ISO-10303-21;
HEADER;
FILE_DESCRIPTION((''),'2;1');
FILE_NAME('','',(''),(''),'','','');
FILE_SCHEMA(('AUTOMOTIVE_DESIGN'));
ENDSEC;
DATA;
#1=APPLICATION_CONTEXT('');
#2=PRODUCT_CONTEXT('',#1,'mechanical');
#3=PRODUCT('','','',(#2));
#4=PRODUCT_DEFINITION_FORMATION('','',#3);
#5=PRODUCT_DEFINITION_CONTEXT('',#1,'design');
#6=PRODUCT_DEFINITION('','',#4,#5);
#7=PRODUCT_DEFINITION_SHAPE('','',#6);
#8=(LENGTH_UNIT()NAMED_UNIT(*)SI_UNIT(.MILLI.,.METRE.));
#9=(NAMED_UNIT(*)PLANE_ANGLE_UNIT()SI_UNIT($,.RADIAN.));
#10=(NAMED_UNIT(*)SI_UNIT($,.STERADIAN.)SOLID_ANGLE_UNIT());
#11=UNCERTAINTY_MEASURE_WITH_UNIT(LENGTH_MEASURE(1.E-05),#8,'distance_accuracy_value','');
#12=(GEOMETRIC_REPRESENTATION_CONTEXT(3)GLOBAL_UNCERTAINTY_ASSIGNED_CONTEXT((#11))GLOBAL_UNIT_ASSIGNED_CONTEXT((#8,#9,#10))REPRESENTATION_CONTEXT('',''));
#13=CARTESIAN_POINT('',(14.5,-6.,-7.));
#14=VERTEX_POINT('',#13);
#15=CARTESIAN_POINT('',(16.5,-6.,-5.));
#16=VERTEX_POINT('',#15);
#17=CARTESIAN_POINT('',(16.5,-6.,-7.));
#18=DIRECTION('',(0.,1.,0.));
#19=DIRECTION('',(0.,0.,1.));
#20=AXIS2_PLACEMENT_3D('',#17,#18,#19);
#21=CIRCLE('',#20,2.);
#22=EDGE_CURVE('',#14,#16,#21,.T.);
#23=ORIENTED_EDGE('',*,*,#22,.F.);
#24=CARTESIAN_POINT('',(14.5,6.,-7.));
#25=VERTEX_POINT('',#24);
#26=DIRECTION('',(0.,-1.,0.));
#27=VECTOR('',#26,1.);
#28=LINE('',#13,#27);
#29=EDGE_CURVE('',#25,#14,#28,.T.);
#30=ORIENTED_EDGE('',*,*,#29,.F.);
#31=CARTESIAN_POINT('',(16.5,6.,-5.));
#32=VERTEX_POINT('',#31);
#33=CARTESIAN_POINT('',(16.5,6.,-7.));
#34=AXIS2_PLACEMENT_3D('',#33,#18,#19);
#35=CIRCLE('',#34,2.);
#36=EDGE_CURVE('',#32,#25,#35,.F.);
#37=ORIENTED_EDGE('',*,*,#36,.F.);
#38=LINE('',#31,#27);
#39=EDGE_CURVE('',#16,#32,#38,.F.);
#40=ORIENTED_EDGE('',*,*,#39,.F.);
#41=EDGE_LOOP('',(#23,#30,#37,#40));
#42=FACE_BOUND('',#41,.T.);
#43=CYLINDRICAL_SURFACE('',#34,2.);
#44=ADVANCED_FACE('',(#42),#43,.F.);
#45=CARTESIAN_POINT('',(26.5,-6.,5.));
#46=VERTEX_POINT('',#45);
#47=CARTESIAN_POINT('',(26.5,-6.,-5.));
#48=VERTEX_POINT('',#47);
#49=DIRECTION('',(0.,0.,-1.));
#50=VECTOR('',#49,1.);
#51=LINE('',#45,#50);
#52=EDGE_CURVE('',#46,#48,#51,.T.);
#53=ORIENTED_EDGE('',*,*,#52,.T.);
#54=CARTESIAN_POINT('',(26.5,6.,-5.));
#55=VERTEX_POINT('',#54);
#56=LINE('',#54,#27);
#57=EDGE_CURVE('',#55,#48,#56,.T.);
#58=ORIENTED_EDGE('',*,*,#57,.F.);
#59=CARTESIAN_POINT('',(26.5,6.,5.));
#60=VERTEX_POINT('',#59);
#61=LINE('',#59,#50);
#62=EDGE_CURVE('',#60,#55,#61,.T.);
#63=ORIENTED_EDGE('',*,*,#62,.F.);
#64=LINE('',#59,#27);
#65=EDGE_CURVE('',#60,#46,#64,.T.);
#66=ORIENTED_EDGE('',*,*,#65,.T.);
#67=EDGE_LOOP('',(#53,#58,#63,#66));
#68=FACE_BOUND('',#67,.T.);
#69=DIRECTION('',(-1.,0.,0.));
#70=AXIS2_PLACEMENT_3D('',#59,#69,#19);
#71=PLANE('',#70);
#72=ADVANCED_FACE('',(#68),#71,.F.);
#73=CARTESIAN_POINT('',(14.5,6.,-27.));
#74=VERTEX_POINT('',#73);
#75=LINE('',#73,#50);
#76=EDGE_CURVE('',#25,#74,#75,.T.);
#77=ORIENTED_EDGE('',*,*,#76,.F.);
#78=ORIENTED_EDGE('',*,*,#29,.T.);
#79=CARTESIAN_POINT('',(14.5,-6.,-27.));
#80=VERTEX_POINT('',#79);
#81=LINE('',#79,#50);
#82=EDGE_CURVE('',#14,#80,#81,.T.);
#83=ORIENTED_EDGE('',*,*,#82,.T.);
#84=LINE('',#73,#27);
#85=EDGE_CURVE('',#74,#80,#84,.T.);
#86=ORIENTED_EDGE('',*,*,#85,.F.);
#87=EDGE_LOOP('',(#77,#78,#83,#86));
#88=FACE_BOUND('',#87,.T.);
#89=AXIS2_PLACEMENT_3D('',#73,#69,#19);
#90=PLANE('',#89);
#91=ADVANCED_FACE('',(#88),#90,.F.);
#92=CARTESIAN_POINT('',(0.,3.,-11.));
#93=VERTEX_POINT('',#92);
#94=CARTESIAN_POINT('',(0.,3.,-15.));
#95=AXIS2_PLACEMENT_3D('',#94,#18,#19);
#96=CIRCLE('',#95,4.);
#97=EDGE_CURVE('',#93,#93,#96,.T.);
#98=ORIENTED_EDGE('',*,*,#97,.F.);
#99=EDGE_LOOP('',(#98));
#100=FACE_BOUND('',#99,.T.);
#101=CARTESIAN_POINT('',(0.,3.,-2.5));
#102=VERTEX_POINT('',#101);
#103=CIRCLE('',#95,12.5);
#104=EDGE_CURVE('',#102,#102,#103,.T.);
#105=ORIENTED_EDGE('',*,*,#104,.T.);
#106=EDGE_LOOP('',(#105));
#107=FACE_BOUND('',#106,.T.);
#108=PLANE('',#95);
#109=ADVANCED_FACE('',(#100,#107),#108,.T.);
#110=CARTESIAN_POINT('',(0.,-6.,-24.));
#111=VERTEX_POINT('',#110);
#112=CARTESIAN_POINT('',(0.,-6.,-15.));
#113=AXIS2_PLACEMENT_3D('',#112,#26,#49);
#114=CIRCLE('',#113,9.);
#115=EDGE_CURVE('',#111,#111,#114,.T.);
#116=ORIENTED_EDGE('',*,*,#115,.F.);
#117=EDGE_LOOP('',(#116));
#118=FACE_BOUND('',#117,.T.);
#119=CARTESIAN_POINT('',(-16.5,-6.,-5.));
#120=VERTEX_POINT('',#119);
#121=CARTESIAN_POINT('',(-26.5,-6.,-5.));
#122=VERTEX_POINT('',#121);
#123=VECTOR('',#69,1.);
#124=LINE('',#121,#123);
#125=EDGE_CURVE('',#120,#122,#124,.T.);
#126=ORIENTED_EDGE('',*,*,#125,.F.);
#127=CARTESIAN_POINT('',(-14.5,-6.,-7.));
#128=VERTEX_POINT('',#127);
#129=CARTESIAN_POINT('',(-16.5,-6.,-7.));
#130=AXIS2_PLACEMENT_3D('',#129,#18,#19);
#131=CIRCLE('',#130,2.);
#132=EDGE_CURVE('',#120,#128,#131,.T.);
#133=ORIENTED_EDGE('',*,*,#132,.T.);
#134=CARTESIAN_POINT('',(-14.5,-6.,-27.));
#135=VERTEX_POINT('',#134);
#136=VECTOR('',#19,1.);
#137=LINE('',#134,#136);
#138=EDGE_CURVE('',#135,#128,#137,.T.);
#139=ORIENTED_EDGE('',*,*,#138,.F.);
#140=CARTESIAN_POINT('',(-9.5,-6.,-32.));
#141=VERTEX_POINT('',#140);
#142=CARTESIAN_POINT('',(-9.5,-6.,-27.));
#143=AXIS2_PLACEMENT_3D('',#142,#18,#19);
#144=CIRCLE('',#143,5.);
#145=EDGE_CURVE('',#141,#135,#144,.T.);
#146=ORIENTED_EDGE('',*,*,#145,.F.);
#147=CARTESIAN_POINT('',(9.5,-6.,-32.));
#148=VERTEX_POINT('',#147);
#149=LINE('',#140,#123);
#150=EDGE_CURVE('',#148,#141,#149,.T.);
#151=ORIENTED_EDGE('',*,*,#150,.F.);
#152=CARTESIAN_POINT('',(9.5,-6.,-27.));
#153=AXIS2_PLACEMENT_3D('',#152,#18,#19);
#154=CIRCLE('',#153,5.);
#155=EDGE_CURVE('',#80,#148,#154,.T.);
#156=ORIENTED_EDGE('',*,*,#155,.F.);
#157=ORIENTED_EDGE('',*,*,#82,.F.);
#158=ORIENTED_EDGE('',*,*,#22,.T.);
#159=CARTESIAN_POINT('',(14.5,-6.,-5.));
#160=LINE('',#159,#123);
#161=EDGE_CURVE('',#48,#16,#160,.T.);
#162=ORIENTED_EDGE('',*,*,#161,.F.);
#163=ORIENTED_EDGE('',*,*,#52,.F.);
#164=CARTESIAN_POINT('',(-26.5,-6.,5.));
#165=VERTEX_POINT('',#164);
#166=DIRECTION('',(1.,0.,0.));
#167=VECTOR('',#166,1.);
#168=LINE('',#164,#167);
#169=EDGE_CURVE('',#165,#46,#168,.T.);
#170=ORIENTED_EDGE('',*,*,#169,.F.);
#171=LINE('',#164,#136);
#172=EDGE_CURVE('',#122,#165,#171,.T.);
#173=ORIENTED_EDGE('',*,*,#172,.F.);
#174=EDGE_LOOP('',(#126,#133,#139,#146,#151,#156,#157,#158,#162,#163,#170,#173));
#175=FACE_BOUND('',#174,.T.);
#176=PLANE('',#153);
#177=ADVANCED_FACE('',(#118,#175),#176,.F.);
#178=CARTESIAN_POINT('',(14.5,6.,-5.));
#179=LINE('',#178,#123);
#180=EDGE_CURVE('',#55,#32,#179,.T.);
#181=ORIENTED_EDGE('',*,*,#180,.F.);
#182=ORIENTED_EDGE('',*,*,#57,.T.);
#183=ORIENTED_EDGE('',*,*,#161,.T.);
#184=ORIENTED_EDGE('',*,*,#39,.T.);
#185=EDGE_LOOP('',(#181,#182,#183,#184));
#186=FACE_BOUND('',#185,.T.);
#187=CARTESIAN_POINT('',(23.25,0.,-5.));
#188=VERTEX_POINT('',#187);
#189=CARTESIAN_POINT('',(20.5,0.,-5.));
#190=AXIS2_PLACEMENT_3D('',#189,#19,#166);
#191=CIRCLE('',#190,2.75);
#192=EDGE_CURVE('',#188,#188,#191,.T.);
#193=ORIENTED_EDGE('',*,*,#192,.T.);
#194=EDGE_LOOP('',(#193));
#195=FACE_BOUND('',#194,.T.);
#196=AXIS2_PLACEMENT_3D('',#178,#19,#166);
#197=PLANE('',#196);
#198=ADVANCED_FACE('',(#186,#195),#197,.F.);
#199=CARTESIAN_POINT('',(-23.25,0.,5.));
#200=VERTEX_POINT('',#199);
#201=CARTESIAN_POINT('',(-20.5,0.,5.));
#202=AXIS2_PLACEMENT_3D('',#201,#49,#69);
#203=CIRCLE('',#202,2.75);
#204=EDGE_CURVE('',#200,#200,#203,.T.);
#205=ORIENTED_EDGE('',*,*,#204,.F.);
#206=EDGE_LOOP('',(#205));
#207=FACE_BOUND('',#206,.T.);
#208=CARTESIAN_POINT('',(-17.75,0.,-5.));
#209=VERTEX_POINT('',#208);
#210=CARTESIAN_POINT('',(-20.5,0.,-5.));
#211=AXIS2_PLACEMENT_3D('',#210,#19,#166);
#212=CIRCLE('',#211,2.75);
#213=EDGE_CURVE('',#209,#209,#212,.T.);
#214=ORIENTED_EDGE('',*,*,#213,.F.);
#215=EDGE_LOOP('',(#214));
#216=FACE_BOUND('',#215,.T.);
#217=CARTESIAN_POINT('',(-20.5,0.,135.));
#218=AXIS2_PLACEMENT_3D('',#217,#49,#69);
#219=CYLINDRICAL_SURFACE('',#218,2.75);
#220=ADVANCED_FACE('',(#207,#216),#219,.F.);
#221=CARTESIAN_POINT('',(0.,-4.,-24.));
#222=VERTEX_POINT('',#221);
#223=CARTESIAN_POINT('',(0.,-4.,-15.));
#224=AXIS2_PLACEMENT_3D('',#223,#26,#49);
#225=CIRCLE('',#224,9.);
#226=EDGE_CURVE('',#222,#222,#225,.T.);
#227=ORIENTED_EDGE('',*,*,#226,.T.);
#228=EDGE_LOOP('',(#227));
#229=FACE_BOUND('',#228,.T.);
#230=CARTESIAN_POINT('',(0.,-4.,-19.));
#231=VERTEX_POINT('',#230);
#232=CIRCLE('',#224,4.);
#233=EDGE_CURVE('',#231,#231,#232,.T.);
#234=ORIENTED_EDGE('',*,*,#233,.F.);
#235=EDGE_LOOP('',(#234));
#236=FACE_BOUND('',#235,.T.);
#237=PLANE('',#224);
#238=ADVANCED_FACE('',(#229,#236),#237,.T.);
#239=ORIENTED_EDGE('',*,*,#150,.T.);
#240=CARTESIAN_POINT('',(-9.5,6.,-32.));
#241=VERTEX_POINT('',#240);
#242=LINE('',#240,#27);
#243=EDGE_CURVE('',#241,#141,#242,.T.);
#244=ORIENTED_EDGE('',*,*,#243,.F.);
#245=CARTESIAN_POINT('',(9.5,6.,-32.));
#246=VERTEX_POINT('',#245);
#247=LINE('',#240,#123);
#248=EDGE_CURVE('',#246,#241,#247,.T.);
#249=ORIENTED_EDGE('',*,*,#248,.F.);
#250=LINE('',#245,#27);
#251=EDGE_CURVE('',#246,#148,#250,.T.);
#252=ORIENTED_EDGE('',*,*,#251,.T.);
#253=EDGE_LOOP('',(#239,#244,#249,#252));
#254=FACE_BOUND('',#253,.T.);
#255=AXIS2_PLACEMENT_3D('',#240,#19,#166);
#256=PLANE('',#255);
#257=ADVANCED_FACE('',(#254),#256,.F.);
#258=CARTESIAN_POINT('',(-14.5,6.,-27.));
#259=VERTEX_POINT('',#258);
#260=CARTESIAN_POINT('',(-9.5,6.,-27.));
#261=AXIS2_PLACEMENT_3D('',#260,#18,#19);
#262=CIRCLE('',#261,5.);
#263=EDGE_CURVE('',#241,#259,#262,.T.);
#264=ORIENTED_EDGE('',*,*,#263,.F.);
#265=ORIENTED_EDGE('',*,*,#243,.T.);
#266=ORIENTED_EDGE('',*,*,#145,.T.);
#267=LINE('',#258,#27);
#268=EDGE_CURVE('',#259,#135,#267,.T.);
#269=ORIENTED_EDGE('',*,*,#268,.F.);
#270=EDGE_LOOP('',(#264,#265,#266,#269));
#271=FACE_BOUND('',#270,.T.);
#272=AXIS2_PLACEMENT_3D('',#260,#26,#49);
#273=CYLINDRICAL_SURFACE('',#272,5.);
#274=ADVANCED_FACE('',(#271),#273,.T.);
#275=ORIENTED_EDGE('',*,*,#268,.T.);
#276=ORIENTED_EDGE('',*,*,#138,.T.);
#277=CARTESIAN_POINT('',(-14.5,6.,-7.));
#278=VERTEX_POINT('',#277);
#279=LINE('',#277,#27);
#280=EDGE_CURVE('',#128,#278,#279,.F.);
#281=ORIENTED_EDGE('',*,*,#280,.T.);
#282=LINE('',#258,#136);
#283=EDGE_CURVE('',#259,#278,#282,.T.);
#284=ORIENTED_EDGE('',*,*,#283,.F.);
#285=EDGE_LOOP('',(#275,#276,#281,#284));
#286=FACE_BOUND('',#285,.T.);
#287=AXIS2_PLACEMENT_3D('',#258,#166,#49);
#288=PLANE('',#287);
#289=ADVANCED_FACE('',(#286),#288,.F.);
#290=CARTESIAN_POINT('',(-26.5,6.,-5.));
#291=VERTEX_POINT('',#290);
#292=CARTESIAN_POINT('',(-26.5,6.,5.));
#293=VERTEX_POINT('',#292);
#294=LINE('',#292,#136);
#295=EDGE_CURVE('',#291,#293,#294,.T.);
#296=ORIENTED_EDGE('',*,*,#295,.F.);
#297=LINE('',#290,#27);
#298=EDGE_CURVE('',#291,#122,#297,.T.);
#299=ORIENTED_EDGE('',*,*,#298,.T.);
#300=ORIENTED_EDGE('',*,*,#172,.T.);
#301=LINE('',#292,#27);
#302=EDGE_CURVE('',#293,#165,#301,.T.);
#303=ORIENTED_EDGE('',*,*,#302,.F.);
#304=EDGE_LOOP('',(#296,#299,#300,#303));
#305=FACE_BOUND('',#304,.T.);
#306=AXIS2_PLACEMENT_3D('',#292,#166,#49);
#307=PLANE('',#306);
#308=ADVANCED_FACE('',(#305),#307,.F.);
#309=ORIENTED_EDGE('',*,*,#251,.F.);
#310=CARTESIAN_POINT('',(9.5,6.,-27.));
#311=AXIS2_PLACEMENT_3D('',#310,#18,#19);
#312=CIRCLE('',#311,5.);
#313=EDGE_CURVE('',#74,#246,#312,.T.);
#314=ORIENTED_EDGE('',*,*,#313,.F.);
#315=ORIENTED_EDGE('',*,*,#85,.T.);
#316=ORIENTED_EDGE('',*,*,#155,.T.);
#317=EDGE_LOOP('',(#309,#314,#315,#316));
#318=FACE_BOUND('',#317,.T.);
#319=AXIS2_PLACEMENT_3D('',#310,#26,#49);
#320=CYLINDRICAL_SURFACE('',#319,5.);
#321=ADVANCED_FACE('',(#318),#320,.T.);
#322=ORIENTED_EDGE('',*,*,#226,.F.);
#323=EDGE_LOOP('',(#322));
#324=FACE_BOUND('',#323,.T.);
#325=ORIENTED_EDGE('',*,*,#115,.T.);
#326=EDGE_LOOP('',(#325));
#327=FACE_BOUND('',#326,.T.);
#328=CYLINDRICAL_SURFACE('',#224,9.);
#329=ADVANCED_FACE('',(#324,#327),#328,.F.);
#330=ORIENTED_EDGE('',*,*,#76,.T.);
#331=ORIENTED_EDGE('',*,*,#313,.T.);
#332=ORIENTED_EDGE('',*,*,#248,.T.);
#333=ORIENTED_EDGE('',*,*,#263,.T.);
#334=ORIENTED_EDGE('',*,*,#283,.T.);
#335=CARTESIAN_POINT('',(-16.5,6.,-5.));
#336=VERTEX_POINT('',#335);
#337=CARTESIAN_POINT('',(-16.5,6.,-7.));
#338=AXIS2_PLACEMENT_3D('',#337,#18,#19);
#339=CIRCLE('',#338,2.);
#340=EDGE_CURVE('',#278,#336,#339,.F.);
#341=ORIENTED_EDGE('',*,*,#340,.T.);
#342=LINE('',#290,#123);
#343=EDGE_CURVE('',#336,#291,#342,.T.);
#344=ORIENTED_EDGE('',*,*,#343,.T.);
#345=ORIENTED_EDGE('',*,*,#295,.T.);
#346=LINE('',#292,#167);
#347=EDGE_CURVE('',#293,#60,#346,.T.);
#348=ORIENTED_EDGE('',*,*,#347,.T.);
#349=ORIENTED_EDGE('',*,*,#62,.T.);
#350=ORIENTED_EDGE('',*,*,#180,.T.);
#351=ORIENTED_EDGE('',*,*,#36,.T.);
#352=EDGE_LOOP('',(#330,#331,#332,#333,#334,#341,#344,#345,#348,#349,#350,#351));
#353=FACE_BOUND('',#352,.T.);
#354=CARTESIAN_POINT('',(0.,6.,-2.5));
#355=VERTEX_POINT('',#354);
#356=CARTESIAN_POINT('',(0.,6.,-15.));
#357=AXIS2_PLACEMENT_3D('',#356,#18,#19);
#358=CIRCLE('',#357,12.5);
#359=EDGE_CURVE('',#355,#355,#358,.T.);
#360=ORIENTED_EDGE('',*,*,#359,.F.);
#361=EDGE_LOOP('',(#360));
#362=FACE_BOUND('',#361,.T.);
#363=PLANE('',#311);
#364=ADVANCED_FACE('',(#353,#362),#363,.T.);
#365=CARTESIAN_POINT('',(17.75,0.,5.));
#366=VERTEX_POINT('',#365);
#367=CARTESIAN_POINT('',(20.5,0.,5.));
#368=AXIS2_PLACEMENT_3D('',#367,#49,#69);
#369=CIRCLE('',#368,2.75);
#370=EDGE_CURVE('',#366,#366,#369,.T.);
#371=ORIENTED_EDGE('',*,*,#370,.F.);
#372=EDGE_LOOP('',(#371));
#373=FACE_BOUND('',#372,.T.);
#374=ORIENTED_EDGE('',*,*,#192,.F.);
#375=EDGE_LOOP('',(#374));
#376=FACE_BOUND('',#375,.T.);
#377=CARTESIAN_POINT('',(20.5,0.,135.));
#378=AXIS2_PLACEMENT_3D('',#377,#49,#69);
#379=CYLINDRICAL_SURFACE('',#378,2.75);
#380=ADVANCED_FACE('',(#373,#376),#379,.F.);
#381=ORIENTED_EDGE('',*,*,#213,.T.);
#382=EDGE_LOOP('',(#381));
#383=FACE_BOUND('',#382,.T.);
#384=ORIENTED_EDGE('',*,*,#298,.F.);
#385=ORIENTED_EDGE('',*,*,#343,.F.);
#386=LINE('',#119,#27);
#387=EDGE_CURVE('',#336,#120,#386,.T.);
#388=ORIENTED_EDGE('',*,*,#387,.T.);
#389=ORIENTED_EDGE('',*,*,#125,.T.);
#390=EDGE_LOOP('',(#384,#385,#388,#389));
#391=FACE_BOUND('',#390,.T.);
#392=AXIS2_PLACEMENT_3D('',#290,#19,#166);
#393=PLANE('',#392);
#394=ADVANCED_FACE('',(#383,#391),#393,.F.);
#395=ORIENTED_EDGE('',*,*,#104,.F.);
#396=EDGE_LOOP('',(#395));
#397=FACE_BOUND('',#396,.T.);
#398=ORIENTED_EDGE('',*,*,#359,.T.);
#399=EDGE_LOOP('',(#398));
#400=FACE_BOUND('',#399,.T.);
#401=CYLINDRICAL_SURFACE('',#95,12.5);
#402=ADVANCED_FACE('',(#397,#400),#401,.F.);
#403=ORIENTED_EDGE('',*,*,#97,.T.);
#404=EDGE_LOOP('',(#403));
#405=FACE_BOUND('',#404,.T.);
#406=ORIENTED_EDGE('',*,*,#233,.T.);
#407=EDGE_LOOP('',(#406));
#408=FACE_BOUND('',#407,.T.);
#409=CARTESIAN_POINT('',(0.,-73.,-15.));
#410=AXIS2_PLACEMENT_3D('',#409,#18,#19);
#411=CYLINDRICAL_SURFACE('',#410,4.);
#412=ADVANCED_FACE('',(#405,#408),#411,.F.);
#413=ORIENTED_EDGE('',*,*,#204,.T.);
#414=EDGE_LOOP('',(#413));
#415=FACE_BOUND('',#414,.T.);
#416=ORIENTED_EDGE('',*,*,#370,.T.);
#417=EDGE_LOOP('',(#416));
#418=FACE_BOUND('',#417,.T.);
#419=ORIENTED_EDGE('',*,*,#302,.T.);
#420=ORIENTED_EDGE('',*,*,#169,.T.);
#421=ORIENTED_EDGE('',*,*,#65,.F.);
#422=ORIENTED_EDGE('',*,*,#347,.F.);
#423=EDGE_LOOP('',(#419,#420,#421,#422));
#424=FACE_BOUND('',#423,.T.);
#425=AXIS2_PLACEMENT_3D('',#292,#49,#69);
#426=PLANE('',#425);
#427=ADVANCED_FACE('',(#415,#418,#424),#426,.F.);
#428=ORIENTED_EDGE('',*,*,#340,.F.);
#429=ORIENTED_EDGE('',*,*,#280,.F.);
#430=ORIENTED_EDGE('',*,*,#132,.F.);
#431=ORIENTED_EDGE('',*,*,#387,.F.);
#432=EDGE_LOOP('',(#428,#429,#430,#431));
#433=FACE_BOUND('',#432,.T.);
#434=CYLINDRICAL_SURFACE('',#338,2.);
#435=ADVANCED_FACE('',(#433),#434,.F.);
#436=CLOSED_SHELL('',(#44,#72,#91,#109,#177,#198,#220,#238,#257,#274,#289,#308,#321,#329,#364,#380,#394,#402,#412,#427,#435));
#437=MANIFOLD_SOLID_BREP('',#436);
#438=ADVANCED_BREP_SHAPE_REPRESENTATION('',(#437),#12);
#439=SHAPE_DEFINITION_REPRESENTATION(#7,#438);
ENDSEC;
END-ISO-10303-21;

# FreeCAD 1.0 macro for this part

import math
import FreeCAD as App
import Part
import Sketcher

V = App.Vector
Q = App.Units.Quantity


def edges_at(feature, points):
    """Names of the edges that pass closest to the given points."""
    edges = feature.Shape.Edges
    near = lambda p: min(range(len(edges)), key=lambda i: edges[i].distToShape(Part.Vertex(*p))[0])
    return sorted({f"Edge{near(p) + 1}" for p in points})

doc = App.newDocument("Part")
body = doc.addObject("PartDesign::Body", "Body")

# Sketch on XZ plane
sketch1 = body.newObject("Sketcher::SketchObject", "Sketch")
sketch1.AttachmentSupport = (doc.getObject("XZ_Plane"), [""])
sketch1.MapMode = "FlatFace"
sketch1.addGeometry([
    Part.LineSegment(V(26, -5, 0), V(14, -5, 0)),  # 0
    Part.LineSegment(V(14, -5, 0), V(14, -27, 0)),  # 1
    Part.ArcOfCircle(Part.Circle(V(10, -27, 0), V(0, 0, 1), 5), math.radians(-90), math.radians(0)),  # 2
    Part.LineSegment(V(10, -32, 0), V(-10, -32, 0)),  # 3
    Part.ArcOfCircle(Part.Circle(V(-10, -27, 0), V(0, 0, 1), 5), math.radians(180), math.radians(270)),  # 4
    Part.LineSegment(V(-14, -27, 0), V(-14, -5, 0)),  # 5
    Part.LineSegment(V(-14, -5, 0), V(-26, -5, 0)),  # 6
    Part.LineSegment(V(-26, -5, 0), V(-26, 5, 0)),  # 7
    Part.LineSegment(V(-26, 5, 0), V(26, 5, 0)),  # 8
    Part.LineSegment(V(26, 5, 0), V(26, -5, 0)),  # 9
], False)
sketch1.addConstraint([
    Sketcher.Constraint("Coincident", 0, 2, 1, 1),
    Sketcher.Constraint("Tangent", 1, 2, 2, 2),
    Sketcher.Constraint("Tangent", 2, 1, 3, 1),
    Sketcher.Constraint("Tangent", 3, 2, 4, 2),
    Sketcher.Constraint("Tangent", 4, 1, 5, 1),
    Sketcher.Constraint("Coincident", 5, 2, 6, 1),
    Sketcher.Constraint("Coincident", 6, 2, 7, 1),
    Sketcher.Constraint("Coincident", 7, 2, 8, 1),
    Sketcher.Constraint("Coincident", 8, 2, 9, 1),
    Sketcher.Constraint("Coincident", 9, 2, 0, 1),
    Sketcher.Constraint("Horizontal", 0),
    Sketcher.Constraint("Vertical", 1),
    Sketcher.Constraint("Horizontal", 3),
    Sketcher.Constraint("Vertical", 5),
    Sketcher.Constraint("Horizontal", 6),
    Sketcher.Constraint("Vertical", 7),
    Sketcher.Constraint("Horizontal", 8),
    Sketcher.Constraint("Vertical", 9),
    Sketcher.Constraint("Equal", 2, 4),
    Sketcher.Constraint("Symmetric", 6, 2, 8, 2, -1, 1),
    Sketcher.Constraint("Symmetric", 0, 2, 5, 2, -2),
    Sketcher.Constraint("Radius", 2, Q("5 mm")),
    Sketcher.Constraint("DistanceX", 0, 2, 0, 1, Q("12 mm")),
    Sketcher.Constraint("DistanceX", 3, 2, 3, 1, Q("19 mm")),
    Sketcher.Constraint("DistanceY", 1, 2, 1, 1, Q("22 mm")),
    Sketcher.Constraint("DistanceY", 7, 1, 7, 2, Q("10 mm")),
])
pad1 = body.newObject("PartDesign::Pad", "Pad")
pad1.Profile = sketch1
pad1.Length = 12
pad1.Midplane = True
doc.recompute()

fillet = body.newObject("PartDesign::Fillet", "Fillet")
fillet.Base = (pad1, edges_at(pad1, [(-14.5, 0, -5), (14.5, 0, -5)]))
fillet.Radius = 2

# Sketch on XY plane
sketch2 = body.newObject("Sketcher::SketchObject", "Sketch001")
sketch2.AttachmentSupport = (doc.getObject("XY_Plane"), [""])
sketch2.MapMode = "FlatFace"
sketch2.AttachmentOffset = App.Placement(V(0, 0, -5), App.Rotation())
sketch2.addGeometry([
    Part.Circle(V(-20.5, 0, 0), V(0, 0, 1), 2.8),
    Part.Circle(V(20.5, 0, 0), V(0, 0, 1), 2.8),
], False)
sketch2.addConstraint([
    Sketcher.Constraint("Equal", 0, 1),
    Sketcher.Constraint("Symmetric", 0, 3, 1, 3, -1, 1),
    Sketcher.Constraint("PointOnObject", 0, 3, -1),
    Sketcher.Constraint("Diameter", 0, Q("5.5 mm")),
    Sketcher.Constraint("DistanceX", 0, 3, 1, 3, Q("41 mm")),
])
pocket1 = body.newObject("PartDesign::Pocket", "Pocket")
pocket1.Profile = sketch2
pocket1.Length = 280
pocket1.Midplane = True

# Sketch on XZ plane
sketch3 = body.newObject("Sketcher::SketchObject", "Sketch002")
sketch3.AttachmentSupport = (doc.getObject("XZ_Plane"), [""])
sketch3.MapMode = "FlatFace"
sketch3.AttachmentOffset = App.Placement(V(0, 0, 6), App.Rotation())
sketch3.addGeometry(Part.Circle(V(0, -15, 0), V(0, 0, 1), 9), False)
sketch3.addConstraint([
    Sketcher.Constraint("PointOnObject", 0, 3, -2),
    Sketcher.Constraint("Diameter", 0, Q("18 mm")),
    Sketcher.Constraint("DistanceY", 0, 3, -1, 1, Q("15 mm")),
])
pocket2 = body.newObject("PartDesign::Pocket", "Pocket001")
pocket2.Profile = sketch3
pocket2.Length = 2

# Sketch on XZ plane
sketch4 = body.newObject("Sketcher::SketchObject", "Sketch003")
sketch4.AttachmentSupport = (doc.getObject("XZ_Plane"), [""])
sketch4.MapMode = "FlatFace"
sketch4.AttachmentOffset = App.Placement(V(0, 0, -6), App.Rotation())
sketch4.addGeometry(Part.Circle(V(0, -15, 0), V(0, 0, 1), 12), False)
sketch4.addConstraint([
    Sketcher.Constraint("PointOnObject", 0, 3, -2),
    Sketcher.Constraint("Diameter", 0, Q("25 mm")),
    Sketcher.Constraint("DistanceY", 0, 3, -1, 1, Q("15 mm")),
])
pocket3 = body.newObject("PartDesign::Pocket", "Pocket002")
pocket3.Profile = sketch4
pocket3.Length = 3
pocket3.Reversed = True

# Sketch on XZ plane
sketch5 = body.newObject("Sketcher::SketchObject", "Sketch004")
sketch5.AttachmentSupport = (doc.getObject("XZ_Plane"), [""])
sketch5.MapMode = "FlatFace"
sketch5.AttachmentOffset = App.Placement(V(0, 0, -3), App.Rotation())
sketch5.addGeometry(Part.Circle(V(0, -15, 0), V(0, 0, 1), 4), False)
sketch5.addConstraint([
    Sketcher.Constraint("PointOnObject", 0, 3, -2),
    Sketcher.Constraint("Diameter", 0, Q("8 mm")),
    Sketcher.Constraint("DistanceY", 0, 3, -1, 1, Q("15 mm")),
])
pocket4 = body.newObject("PartDesign::Pocket", "Pocket003")
pocket4.Profile = sketch5
pocket4.Length = 76
pocket4.Reversed = True

doc.recompute()
